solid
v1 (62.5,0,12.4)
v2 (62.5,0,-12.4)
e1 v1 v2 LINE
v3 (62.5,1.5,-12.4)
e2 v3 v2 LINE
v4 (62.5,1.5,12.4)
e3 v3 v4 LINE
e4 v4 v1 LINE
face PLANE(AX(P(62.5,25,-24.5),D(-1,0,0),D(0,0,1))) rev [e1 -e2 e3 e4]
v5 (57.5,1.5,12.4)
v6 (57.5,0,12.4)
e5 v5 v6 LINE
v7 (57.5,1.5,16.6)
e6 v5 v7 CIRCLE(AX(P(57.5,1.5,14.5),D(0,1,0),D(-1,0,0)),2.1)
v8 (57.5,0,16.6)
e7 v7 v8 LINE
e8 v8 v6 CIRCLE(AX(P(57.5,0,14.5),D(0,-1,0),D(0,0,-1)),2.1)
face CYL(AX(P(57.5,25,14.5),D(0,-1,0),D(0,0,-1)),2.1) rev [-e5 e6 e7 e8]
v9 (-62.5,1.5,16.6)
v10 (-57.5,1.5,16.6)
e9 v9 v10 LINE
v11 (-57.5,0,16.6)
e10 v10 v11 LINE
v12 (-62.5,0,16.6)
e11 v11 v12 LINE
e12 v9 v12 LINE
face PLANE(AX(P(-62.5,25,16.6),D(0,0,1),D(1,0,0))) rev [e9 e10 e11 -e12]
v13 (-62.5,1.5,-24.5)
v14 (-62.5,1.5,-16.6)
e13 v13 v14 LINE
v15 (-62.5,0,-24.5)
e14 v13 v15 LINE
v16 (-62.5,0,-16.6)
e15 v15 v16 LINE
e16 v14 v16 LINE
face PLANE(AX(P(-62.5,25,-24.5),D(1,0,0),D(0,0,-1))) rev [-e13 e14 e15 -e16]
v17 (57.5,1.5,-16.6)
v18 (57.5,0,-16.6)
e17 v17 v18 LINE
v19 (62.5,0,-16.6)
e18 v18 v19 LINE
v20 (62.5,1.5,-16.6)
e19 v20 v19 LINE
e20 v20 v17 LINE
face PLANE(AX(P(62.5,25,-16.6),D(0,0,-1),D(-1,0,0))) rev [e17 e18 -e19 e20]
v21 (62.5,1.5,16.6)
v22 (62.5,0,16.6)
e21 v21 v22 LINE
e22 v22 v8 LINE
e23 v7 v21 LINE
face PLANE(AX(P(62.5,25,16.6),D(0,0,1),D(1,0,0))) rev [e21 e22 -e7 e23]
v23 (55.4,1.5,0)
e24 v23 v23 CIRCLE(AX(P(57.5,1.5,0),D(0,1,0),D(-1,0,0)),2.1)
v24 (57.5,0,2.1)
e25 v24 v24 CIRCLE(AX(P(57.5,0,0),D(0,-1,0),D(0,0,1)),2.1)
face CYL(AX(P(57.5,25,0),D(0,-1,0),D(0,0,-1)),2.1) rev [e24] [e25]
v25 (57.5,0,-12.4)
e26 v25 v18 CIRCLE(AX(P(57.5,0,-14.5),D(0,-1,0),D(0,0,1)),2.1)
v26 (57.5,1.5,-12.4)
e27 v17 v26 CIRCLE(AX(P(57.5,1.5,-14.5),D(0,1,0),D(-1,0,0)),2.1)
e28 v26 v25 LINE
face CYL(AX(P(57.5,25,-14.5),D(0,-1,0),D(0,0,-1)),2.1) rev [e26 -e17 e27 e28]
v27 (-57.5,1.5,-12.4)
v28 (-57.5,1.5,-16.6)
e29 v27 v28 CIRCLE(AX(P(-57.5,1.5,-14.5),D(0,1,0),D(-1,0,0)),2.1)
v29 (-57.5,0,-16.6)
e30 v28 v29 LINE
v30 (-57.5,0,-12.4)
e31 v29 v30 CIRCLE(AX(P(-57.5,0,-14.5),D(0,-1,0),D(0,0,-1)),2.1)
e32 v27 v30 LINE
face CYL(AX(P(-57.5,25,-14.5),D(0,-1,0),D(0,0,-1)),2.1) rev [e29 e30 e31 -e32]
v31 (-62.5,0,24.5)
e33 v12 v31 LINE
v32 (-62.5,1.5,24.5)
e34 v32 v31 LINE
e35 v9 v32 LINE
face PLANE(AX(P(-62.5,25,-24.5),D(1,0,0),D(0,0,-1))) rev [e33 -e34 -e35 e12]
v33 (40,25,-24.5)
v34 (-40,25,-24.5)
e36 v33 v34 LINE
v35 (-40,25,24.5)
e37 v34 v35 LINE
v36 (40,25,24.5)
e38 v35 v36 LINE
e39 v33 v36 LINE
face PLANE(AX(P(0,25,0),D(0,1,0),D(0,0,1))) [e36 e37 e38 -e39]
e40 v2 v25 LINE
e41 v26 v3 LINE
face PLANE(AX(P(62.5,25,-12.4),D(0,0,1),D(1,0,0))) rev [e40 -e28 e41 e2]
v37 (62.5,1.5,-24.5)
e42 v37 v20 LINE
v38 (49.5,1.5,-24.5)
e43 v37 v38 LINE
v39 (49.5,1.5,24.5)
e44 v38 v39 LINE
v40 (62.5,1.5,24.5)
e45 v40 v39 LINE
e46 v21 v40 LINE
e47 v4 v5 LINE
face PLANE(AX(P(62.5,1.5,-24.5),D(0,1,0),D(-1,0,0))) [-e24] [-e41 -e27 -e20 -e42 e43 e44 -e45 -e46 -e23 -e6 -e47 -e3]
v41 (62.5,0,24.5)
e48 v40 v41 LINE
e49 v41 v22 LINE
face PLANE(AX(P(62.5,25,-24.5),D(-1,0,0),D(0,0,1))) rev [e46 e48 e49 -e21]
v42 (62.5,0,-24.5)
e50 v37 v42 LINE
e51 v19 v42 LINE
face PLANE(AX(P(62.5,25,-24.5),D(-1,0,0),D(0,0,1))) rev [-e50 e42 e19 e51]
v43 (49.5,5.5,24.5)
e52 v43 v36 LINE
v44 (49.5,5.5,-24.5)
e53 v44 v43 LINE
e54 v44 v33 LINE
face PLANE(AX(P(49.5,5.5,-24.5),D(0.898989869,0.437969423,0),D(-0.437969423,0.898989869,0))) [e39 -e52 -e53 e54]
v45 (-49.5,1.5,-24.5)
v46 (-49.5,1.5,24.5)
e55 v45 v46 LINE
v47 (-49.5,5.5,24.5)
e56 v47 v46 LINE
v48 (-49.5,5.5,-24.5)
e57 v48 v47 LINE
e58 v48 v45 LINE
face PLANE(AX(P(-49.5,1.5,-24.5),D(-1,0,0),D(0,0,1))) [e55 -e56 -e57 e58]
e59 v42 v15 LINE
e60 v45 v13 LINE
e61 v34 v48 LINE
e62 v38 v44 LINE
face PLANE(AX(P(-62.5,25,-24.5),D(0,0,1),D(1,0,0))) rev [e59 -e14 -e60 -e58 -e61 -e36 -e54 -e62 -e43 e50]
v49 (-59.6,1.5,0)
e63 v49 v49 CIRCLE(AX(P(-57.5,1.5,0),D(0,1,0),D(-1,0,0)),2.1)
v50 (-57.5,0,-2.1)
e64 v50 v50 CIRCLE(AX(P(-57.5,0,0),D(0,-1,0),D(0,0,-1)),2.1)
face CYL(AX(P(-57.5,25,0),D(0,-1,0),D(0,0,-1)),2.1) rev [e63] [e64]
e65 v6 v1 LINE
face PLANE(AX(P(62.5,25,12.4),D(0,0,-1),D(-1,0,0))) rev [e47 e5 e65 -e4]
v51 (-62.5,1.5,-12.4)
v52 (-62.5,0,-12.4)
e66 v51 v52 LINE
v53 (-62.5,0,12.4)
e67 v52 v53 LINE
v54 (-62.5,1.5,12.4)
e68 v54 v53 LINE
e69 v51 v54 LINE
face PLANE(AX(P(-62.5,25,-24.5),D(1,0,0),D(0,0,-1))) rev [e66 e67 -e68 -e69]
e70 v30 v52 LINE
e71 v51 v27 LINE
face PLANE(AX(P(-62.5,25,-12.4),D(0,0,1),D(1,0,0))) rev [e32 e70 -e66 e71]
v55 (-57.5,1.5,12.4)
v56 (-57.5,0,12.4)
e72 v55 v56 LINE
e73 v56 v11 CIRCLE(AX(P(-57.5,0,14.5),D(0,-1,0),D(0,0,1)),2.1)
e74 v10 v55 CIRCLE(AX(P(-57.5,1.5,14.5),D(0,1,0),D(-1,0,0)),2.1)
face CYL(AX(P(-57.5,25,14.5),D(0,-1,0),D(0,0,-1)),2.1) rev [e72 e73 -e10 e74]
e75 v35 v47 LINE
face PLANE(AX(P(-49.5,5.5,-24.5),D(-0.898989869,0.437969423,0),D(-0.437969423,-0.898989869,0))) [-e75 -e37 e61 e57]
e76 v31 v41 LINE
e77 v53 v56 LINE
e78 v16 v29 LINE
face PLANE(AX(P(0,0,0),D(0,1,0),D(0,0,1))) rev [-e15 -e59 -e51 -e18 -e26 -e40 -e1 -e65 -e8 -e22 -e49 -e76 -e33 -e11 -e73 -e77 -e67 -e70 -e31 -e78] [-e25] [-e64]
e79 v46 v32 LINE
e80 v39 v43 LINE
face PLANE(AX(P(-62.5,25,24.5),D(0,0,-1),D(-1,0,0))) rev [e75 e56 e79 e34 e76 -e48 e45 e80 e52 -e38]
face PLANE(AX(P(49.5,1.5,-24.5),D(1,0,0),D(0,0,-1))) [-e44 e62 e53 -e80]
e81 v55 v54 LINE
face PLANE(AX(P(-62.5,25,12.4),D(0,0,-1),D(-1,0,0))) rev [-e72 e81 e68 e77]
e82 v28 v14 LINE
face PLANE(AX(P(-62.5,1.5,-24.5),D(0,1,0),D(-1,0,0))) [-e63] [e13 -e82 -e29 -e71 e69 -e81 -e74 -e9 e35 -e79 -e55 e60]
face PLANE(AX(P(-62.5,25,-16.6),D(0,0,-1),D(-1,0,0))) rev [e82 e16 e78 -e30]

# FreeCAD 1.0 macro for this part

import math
import FreeCAD as App
import Part
import Sketcher
Q = App.Units.Quantity


def add_polygon(sketch, points):
    """Adds a closed chain of lines whose ends are joined by coincident constraints."""
    first, n = sketch.GeometryCount, len(points)
    for a, b in zip(points, points[1:] + points[:1]):
        sketch.addGeometry(Part.LineSegment(App.Vector(*a, 0), App.Vector(*b, 0)), False)
    for i in range(n):
        sketch.addConstraint(Sketcher.Constraint("Coincident", first + i, 2, first + (i + 1) % n, 1))

doc = App.newDocument("Part")
params = doc.addObject("Spreadsheet::Sheet", "Params")
for row, (alias, value) in enumerate([
    ("sketch1_width", "125 mm"),
    ("sketch1_height", "49 mm"),
    ("pad1_length", "25 mm"),
    ("sketch2_width", "13 mm"),
    ("sketch2_width2", "80 mm"),
    ("sketch2_width3", "125 mm"),
    ("sketch2_height", "4 mm"),
    ("sketch2_height2", "1.5 mm"),
    ("sketch3_diameter", "4.2 mm"),
    ("sketch3_width", "5 mm"),
    ("pocket2_length", "25 mm"),
], start=1):
    params.set(f"A{row}", alias)
    params.set(f"B{row}", "=" + value)
    params.setAlias(f"B{row}", alias)

body = doc.addObject("PartDesign::Body", "Body")

# Sketch on XZ plane
sketch1 = doc.addObject("Sketcher::SketchObject", "Sketch")
body.addObject(sketch1)
sketch1.AttachmentSupport = (doc.XZ_Plane, [""])
sketch1.MapMode = "FlatFace"
add_polygon(sketch1, [(-62.5, -24.5), (-62.5, 24.5), (62.5, 24.5), (62.5, -24.5)])  # lines 0-3
sketch1.addConstraint([
    Sketcher.Constraint("Vertical", 0),
    Sketcher.Constraint("Horizontal", 1),
    Sketcher.Constraint("Vertical", 2),
    Sketcher.Constraint("Horizontal", 3),
    Sketcher.Constraint("Symmetric", 0, 2, 2, 2, -1, 1),
    Sketcher.Constraint("DistanceX", 1, 1, 1, 2, Q("125 mm")),
    Sketcher.Constraint("DistanceY", 0, 1, 0, 2, Q("49 mm")),
])
sketch1.setExpression("Constraints[9]", "Params.sketch1_width")
sketch1.setExpression("Constraints[10]", "Params.sketch1_height")
pad1 = doc.addObject("PartDesign::Pad", "Pad")
body.addObject(pad1)
pad1.Profile = sketch1
pad1.setExpression("Length", "Params.pad1_length")
pad1.Reversed = True

# Sketch on XY plane
sketch2 = doc.addObject("Sketcher::SketchObject", "Sketch001")
body.addObject(sketch2)
sketch2.AttachmentSupport = (doc.XY_Plane, [""])
sketch2.MapMode = "FlatFace"
sketch2.AttachmentOffset = App.Placement(App.Vector(0, 0, 24.5), App.Rotation())
add_polygon(sketch2, [(-77.157, 39.657), (-77.157, -14.657), (77.157, -14.657), (77.157, 39.657)])  # lines 0-3
add_polygon(sketch2, [(-62.5, 0), (-62.5, 1.5), (-49.5, 1.5), (-49.5, 5.5), (-40, 25), (40, 25), (49.5, 5.5), (49.5, 1.5), (62.5, 1.5), (62.5, 0)])  # lines 4-13
sketch2.addConstraint([
    Sketcher.Constraint("Vertical", 0),
    Sketcher.Constraint("Horizontal", 1),
    Sketcher.Constraint("Vertical", 2),
    Sketcher.Constraint("Horizontal", 3),
    Sketcher.Constraint("Vertical", 4),
    Sketcher.Constraint("Horizontal", 5),
    Sketcher.Constraint("Vertical", 6),
    Sketcher.Constraint("Horizontal", 8),
    Sketcher.Constraint("Vertical", 10),
    Sketcher.Constraint("Horizontal", 11),
    Sketcher.Constraint("Vertical", 12),
    Sketcher.Constraint("Horizontal", 13),
    Sketcher.Constraint("Symmetric", 12, 2, 13, 2, -1, 1),
    Sketcher.Constraint("Symmetric", 6, 2, 9, 2, -2),
    Sketcher.Constraint("Horizontal", 5, 2, 10, 2),
    Sketcher.Constraint("Equal", 7, 9),
    Sketcher.Constraint("DistanceX", 5, 1, 5, 2, Q("13 mm")),
    Sketcher.Constraint("DistanceX", 8, 1, 8, 2, Q("80 mm")),
    Sketcher.Constraint("DistanceX", 13, 2, 13, 1, Q("125 mm")),
    Sketcher.Constraint("DistanceY", 6, 1, 6, 2, Q("4 mm")),
    Sketcher.Constraint("DistanceY", 4, 1, 4, 2, Q("1.5 mm")),
    Sketcher.Constraint("DistanceY", -1, 1, 7, 2, Q("25 mm")),
    Sketcher.Constraint("DistanceX", 1, 1, 1, 2, Q("154.314 mm")),
    Sketcher.Constraint("DistanceY", 0, 2, 0, 1, Q("54.314 mm")),
    Sketcher.Constraint("DistanceX", 0, 2, -1, 1, Q("77.157 mm")),
    Sketcher.Constraint("DistanceY", 0, 2, -1, 1, Q("14.657 mm")),
])
sketch2.setExpression("Constraints[30]", "Params.sketch2_width")
sketch2.setExpression("Constraints[31]", "Params.sketch2_width2")
sketch2.setExpression("Constraints[32]", "Params.sketch2_width3")
sketch2.setExpression("Constraints[33]", "Params.sketch2_height")
sketch2.setExpression("Constraints[34]", "Params.sketch2_height2")
pocket1 = doc.addObject("PartDesign::Pocket", "Pocket")
body.addObject(pocket1)
pocket1.Profile = sketch2
pocket1.Type = "ThroughAll"

# Sketch on XZ plane
sketch3 = doc.addObject("Sketcher::SketchObject", "Sketch002")
body.addObject(sketch3)
sketch3.AttachmentSupport = (doc.XZ_Plane, [""])
sketch3.MapMode = "FlatFace"
sketch3.addGeometry([
    Part.Circle(App.Vector(-57.5, 0, 0), App.Vector(0, 0, 1), 2.1),  # 0
    Part.Circle(App.Vector(57.5, 0, 0), App.Vector(0, 0, 1), 2.1),  # 1
    Part.LineSegment(App.Vector(-57.5, 16.6, 0), App.Vector(-62.5, 16.6, 0)),  # 2
    Part.LineSegment(App.Vector(-62.5, 16.6, 0), App.Vector(-62.5, 12.4, 0)),  # 3
    Part.LineSegment(App.Vector(-62.5, 12.4, 0), App.Vector(-57.5, 12.4, 0)),  # 4
    Part.ArcOfCircle(Part.Circle(App.Vector(-57.5, 14.5, 0), App.Vector(0, 0, 1), 2.1), math.radians(-90), math.radians(90)),  # 5
    Part.LineSegment(App.Vector(62.5, 12.4, 0), App.Vector(62.5, 16.6, 0)),  # 6
    Part.LineSegment(App.Vector(62.5, 16.6, 0), App.Vector(57.5, 16.6, 0)),  # 7
    Part.ArcOfCircle(Part.Circle(App.Vector(57.5, 14.5, 0), App.Vector(0, 0, 1), 2.1), math.radians(90), math.radians(270)),  # 8
    Part.LineSegment(App.Vector(57.5, 12.4, 0), App.Vector(62.5, 12.4, 0)),  # 9
    Part.LineSegment(App.Vector(57.5, -16.6, 0), App.Vector(62.5, -16.6, 0)),  # 10
    Part.LineSegment(App.Vector(62.5, -16.6, 0), App.Vector(62.5, -12.4, 0)),  # 11
    Part.LineSegment(App.Vector(62.5, -12.4, 0), App.Vector(57.5, -12.4, 0)),  # 12
    Part.ArcOfCircle(Part.Circle(App.Vector(57.5, -14.5, 0), App.Vector(0, 0, 1), 2.1), math.radians(90), math.radians(270)),  # 13
    Part.LineSegment(App.Vector(-62.5, -12.4, 0), App.Vector(-62.5, -16.6, 0)),  # 14
    Part.LineSegment(App.Vector(-62.5, -16.6, 0), App.Vector(-57.5, -16.6, 0)),  # 15
    Part.ArcOfCircle(Part.Circle(App.Vector(-57.5, -14.5, 0), App.Vector(0, 0, 1), 2.1), math.radians(-90), math.radians(90)),  # 16
    Part.LineSegment(App.Vector(-57.5, -12.4, 0), App.Vector(-62.5, -12.4, 0)),  # 17
], False)
sketch3.addConstraint([
    Sketcher.Constraint("Coincident", 2, 2, 3, 1),
    Sketcher.Constraint("Coincident", 3, 2, 4, 1),
    Sketcher.Constraint("Tangent", 4, 2, 5, 1),
    Sketcher.Constraint("Tangent", 5, 2, 2, 1),
    Sketcher.Constraint("Coincident", 6, 2, 7, 1),
    Sketcher.Constraint("Tangent", 7, 2, 8, 1),
    Sketcher.Constraint("Tangent", 8, 2, 9, 1),
    Sketcher.Constraint("Coincident", 9, 2, 6, 1),
    Sketcher.Constraint("Coincident", 10, 2, 11, 1),
    Sketcher.Constraint("Coincident", 11, 2, 12, 1),
    Sketcher.Constraint("Tangent", 12, 2, 13, 1),
    Sketcher.Constraint("Tangent", 13, 2, 10, 1),
    Sketcher.Constraint("Coincident", 14, 2, 15, 1),
    Sketcher.Constraint("Tangent", 15, 2, 16, 1),
    Sketcher.Constraint("Tangent", 16, 2, 17, 1),
    Sketcher.Constraint("Coincident", 17, 2, 14, 1),
    Sketcher.Constraint("Horizontal", 2),
    Sketcher.Constraint("Vertical", 3),
    Sketcher.Constraint("Horizontal", 4),
    Sketcher.Constraint("Vertical", 6),
    Sketcher.Constraint("Horizontal", 7),
    Sketcher.Constraint("Horizontal", 9),
    Sketcher.Constraint("Horizontal", 10),
    Sketcher.Constraint("Vertical", 11),
    Sketcher.Constraint("Horizontal", 12),
    Sketcher.Constraint("Vertical", 14),
    Sketcher.Constraint("Horizontal", 15),
    Sketcher.Constraint("Horizontal", 17),
    Sketcher.Constraint("Equal", 0, 1),
    Sketcher.Constraint("Equal", 1, 5),
    Sketcher.Constraint("Equal", 5, 8),
    Sketcher.Constraint("Equal", 8, 13),
    Sketcher.Constraint("Equal", 13, 16),
    Sketcher.Constraint("Symmetric", 0, 3, 1, 3, -1, 1),
    Sketcher.Constraint("Symmetric", 5, 3, 13, 3, -1, 1),
    Sketcher.Constraint("Symmetric", 8, 3, 16, 3, -1, 1),
    Sketcher.Constraint("Symmetric", 5, 3, 8, 3, -2),
    Sketcher.Constraint("PointOnObject", 0, 3, -1),
    Sketcher.Constraint("Vertical", 0, 3, 5, 3),
    Sketcher.Constraint("Vertical", 9, 2, 10, 2),
    Sketcher.Constraint("Vertical", 3, 2, 14, 2),
    Sketcher.Constraint("Equal", 4, 7),
    Sketcher.Constraint("Diameter", 0, Q("4.2 mm")),
    Sketcher.Constraint("DistanceX", 2, 2, 2, 1, Q("5 mm")),
    Sketcher.Constraint("DistanceX", 0, 3, 1, 3, Q("115 mm")),
    Sketcher.Constraint("DistanceY", 13, 3, 8, 3, Q("29 mm")),
])
sketch3.setExpression("Constraints[42]", "Params.sketch3_diameter")
sketch3.setExpression("Constraints[43]", "Params.sketch3_width")
pocket2 = doc.addObject("PartDesign::Pocket", "Pocket001")
body.addObject(pocket2)
pocket2.Profile = sketch3
pocket2.setExpression("Length", "Params.pocket2_length")

doc.recompute()
